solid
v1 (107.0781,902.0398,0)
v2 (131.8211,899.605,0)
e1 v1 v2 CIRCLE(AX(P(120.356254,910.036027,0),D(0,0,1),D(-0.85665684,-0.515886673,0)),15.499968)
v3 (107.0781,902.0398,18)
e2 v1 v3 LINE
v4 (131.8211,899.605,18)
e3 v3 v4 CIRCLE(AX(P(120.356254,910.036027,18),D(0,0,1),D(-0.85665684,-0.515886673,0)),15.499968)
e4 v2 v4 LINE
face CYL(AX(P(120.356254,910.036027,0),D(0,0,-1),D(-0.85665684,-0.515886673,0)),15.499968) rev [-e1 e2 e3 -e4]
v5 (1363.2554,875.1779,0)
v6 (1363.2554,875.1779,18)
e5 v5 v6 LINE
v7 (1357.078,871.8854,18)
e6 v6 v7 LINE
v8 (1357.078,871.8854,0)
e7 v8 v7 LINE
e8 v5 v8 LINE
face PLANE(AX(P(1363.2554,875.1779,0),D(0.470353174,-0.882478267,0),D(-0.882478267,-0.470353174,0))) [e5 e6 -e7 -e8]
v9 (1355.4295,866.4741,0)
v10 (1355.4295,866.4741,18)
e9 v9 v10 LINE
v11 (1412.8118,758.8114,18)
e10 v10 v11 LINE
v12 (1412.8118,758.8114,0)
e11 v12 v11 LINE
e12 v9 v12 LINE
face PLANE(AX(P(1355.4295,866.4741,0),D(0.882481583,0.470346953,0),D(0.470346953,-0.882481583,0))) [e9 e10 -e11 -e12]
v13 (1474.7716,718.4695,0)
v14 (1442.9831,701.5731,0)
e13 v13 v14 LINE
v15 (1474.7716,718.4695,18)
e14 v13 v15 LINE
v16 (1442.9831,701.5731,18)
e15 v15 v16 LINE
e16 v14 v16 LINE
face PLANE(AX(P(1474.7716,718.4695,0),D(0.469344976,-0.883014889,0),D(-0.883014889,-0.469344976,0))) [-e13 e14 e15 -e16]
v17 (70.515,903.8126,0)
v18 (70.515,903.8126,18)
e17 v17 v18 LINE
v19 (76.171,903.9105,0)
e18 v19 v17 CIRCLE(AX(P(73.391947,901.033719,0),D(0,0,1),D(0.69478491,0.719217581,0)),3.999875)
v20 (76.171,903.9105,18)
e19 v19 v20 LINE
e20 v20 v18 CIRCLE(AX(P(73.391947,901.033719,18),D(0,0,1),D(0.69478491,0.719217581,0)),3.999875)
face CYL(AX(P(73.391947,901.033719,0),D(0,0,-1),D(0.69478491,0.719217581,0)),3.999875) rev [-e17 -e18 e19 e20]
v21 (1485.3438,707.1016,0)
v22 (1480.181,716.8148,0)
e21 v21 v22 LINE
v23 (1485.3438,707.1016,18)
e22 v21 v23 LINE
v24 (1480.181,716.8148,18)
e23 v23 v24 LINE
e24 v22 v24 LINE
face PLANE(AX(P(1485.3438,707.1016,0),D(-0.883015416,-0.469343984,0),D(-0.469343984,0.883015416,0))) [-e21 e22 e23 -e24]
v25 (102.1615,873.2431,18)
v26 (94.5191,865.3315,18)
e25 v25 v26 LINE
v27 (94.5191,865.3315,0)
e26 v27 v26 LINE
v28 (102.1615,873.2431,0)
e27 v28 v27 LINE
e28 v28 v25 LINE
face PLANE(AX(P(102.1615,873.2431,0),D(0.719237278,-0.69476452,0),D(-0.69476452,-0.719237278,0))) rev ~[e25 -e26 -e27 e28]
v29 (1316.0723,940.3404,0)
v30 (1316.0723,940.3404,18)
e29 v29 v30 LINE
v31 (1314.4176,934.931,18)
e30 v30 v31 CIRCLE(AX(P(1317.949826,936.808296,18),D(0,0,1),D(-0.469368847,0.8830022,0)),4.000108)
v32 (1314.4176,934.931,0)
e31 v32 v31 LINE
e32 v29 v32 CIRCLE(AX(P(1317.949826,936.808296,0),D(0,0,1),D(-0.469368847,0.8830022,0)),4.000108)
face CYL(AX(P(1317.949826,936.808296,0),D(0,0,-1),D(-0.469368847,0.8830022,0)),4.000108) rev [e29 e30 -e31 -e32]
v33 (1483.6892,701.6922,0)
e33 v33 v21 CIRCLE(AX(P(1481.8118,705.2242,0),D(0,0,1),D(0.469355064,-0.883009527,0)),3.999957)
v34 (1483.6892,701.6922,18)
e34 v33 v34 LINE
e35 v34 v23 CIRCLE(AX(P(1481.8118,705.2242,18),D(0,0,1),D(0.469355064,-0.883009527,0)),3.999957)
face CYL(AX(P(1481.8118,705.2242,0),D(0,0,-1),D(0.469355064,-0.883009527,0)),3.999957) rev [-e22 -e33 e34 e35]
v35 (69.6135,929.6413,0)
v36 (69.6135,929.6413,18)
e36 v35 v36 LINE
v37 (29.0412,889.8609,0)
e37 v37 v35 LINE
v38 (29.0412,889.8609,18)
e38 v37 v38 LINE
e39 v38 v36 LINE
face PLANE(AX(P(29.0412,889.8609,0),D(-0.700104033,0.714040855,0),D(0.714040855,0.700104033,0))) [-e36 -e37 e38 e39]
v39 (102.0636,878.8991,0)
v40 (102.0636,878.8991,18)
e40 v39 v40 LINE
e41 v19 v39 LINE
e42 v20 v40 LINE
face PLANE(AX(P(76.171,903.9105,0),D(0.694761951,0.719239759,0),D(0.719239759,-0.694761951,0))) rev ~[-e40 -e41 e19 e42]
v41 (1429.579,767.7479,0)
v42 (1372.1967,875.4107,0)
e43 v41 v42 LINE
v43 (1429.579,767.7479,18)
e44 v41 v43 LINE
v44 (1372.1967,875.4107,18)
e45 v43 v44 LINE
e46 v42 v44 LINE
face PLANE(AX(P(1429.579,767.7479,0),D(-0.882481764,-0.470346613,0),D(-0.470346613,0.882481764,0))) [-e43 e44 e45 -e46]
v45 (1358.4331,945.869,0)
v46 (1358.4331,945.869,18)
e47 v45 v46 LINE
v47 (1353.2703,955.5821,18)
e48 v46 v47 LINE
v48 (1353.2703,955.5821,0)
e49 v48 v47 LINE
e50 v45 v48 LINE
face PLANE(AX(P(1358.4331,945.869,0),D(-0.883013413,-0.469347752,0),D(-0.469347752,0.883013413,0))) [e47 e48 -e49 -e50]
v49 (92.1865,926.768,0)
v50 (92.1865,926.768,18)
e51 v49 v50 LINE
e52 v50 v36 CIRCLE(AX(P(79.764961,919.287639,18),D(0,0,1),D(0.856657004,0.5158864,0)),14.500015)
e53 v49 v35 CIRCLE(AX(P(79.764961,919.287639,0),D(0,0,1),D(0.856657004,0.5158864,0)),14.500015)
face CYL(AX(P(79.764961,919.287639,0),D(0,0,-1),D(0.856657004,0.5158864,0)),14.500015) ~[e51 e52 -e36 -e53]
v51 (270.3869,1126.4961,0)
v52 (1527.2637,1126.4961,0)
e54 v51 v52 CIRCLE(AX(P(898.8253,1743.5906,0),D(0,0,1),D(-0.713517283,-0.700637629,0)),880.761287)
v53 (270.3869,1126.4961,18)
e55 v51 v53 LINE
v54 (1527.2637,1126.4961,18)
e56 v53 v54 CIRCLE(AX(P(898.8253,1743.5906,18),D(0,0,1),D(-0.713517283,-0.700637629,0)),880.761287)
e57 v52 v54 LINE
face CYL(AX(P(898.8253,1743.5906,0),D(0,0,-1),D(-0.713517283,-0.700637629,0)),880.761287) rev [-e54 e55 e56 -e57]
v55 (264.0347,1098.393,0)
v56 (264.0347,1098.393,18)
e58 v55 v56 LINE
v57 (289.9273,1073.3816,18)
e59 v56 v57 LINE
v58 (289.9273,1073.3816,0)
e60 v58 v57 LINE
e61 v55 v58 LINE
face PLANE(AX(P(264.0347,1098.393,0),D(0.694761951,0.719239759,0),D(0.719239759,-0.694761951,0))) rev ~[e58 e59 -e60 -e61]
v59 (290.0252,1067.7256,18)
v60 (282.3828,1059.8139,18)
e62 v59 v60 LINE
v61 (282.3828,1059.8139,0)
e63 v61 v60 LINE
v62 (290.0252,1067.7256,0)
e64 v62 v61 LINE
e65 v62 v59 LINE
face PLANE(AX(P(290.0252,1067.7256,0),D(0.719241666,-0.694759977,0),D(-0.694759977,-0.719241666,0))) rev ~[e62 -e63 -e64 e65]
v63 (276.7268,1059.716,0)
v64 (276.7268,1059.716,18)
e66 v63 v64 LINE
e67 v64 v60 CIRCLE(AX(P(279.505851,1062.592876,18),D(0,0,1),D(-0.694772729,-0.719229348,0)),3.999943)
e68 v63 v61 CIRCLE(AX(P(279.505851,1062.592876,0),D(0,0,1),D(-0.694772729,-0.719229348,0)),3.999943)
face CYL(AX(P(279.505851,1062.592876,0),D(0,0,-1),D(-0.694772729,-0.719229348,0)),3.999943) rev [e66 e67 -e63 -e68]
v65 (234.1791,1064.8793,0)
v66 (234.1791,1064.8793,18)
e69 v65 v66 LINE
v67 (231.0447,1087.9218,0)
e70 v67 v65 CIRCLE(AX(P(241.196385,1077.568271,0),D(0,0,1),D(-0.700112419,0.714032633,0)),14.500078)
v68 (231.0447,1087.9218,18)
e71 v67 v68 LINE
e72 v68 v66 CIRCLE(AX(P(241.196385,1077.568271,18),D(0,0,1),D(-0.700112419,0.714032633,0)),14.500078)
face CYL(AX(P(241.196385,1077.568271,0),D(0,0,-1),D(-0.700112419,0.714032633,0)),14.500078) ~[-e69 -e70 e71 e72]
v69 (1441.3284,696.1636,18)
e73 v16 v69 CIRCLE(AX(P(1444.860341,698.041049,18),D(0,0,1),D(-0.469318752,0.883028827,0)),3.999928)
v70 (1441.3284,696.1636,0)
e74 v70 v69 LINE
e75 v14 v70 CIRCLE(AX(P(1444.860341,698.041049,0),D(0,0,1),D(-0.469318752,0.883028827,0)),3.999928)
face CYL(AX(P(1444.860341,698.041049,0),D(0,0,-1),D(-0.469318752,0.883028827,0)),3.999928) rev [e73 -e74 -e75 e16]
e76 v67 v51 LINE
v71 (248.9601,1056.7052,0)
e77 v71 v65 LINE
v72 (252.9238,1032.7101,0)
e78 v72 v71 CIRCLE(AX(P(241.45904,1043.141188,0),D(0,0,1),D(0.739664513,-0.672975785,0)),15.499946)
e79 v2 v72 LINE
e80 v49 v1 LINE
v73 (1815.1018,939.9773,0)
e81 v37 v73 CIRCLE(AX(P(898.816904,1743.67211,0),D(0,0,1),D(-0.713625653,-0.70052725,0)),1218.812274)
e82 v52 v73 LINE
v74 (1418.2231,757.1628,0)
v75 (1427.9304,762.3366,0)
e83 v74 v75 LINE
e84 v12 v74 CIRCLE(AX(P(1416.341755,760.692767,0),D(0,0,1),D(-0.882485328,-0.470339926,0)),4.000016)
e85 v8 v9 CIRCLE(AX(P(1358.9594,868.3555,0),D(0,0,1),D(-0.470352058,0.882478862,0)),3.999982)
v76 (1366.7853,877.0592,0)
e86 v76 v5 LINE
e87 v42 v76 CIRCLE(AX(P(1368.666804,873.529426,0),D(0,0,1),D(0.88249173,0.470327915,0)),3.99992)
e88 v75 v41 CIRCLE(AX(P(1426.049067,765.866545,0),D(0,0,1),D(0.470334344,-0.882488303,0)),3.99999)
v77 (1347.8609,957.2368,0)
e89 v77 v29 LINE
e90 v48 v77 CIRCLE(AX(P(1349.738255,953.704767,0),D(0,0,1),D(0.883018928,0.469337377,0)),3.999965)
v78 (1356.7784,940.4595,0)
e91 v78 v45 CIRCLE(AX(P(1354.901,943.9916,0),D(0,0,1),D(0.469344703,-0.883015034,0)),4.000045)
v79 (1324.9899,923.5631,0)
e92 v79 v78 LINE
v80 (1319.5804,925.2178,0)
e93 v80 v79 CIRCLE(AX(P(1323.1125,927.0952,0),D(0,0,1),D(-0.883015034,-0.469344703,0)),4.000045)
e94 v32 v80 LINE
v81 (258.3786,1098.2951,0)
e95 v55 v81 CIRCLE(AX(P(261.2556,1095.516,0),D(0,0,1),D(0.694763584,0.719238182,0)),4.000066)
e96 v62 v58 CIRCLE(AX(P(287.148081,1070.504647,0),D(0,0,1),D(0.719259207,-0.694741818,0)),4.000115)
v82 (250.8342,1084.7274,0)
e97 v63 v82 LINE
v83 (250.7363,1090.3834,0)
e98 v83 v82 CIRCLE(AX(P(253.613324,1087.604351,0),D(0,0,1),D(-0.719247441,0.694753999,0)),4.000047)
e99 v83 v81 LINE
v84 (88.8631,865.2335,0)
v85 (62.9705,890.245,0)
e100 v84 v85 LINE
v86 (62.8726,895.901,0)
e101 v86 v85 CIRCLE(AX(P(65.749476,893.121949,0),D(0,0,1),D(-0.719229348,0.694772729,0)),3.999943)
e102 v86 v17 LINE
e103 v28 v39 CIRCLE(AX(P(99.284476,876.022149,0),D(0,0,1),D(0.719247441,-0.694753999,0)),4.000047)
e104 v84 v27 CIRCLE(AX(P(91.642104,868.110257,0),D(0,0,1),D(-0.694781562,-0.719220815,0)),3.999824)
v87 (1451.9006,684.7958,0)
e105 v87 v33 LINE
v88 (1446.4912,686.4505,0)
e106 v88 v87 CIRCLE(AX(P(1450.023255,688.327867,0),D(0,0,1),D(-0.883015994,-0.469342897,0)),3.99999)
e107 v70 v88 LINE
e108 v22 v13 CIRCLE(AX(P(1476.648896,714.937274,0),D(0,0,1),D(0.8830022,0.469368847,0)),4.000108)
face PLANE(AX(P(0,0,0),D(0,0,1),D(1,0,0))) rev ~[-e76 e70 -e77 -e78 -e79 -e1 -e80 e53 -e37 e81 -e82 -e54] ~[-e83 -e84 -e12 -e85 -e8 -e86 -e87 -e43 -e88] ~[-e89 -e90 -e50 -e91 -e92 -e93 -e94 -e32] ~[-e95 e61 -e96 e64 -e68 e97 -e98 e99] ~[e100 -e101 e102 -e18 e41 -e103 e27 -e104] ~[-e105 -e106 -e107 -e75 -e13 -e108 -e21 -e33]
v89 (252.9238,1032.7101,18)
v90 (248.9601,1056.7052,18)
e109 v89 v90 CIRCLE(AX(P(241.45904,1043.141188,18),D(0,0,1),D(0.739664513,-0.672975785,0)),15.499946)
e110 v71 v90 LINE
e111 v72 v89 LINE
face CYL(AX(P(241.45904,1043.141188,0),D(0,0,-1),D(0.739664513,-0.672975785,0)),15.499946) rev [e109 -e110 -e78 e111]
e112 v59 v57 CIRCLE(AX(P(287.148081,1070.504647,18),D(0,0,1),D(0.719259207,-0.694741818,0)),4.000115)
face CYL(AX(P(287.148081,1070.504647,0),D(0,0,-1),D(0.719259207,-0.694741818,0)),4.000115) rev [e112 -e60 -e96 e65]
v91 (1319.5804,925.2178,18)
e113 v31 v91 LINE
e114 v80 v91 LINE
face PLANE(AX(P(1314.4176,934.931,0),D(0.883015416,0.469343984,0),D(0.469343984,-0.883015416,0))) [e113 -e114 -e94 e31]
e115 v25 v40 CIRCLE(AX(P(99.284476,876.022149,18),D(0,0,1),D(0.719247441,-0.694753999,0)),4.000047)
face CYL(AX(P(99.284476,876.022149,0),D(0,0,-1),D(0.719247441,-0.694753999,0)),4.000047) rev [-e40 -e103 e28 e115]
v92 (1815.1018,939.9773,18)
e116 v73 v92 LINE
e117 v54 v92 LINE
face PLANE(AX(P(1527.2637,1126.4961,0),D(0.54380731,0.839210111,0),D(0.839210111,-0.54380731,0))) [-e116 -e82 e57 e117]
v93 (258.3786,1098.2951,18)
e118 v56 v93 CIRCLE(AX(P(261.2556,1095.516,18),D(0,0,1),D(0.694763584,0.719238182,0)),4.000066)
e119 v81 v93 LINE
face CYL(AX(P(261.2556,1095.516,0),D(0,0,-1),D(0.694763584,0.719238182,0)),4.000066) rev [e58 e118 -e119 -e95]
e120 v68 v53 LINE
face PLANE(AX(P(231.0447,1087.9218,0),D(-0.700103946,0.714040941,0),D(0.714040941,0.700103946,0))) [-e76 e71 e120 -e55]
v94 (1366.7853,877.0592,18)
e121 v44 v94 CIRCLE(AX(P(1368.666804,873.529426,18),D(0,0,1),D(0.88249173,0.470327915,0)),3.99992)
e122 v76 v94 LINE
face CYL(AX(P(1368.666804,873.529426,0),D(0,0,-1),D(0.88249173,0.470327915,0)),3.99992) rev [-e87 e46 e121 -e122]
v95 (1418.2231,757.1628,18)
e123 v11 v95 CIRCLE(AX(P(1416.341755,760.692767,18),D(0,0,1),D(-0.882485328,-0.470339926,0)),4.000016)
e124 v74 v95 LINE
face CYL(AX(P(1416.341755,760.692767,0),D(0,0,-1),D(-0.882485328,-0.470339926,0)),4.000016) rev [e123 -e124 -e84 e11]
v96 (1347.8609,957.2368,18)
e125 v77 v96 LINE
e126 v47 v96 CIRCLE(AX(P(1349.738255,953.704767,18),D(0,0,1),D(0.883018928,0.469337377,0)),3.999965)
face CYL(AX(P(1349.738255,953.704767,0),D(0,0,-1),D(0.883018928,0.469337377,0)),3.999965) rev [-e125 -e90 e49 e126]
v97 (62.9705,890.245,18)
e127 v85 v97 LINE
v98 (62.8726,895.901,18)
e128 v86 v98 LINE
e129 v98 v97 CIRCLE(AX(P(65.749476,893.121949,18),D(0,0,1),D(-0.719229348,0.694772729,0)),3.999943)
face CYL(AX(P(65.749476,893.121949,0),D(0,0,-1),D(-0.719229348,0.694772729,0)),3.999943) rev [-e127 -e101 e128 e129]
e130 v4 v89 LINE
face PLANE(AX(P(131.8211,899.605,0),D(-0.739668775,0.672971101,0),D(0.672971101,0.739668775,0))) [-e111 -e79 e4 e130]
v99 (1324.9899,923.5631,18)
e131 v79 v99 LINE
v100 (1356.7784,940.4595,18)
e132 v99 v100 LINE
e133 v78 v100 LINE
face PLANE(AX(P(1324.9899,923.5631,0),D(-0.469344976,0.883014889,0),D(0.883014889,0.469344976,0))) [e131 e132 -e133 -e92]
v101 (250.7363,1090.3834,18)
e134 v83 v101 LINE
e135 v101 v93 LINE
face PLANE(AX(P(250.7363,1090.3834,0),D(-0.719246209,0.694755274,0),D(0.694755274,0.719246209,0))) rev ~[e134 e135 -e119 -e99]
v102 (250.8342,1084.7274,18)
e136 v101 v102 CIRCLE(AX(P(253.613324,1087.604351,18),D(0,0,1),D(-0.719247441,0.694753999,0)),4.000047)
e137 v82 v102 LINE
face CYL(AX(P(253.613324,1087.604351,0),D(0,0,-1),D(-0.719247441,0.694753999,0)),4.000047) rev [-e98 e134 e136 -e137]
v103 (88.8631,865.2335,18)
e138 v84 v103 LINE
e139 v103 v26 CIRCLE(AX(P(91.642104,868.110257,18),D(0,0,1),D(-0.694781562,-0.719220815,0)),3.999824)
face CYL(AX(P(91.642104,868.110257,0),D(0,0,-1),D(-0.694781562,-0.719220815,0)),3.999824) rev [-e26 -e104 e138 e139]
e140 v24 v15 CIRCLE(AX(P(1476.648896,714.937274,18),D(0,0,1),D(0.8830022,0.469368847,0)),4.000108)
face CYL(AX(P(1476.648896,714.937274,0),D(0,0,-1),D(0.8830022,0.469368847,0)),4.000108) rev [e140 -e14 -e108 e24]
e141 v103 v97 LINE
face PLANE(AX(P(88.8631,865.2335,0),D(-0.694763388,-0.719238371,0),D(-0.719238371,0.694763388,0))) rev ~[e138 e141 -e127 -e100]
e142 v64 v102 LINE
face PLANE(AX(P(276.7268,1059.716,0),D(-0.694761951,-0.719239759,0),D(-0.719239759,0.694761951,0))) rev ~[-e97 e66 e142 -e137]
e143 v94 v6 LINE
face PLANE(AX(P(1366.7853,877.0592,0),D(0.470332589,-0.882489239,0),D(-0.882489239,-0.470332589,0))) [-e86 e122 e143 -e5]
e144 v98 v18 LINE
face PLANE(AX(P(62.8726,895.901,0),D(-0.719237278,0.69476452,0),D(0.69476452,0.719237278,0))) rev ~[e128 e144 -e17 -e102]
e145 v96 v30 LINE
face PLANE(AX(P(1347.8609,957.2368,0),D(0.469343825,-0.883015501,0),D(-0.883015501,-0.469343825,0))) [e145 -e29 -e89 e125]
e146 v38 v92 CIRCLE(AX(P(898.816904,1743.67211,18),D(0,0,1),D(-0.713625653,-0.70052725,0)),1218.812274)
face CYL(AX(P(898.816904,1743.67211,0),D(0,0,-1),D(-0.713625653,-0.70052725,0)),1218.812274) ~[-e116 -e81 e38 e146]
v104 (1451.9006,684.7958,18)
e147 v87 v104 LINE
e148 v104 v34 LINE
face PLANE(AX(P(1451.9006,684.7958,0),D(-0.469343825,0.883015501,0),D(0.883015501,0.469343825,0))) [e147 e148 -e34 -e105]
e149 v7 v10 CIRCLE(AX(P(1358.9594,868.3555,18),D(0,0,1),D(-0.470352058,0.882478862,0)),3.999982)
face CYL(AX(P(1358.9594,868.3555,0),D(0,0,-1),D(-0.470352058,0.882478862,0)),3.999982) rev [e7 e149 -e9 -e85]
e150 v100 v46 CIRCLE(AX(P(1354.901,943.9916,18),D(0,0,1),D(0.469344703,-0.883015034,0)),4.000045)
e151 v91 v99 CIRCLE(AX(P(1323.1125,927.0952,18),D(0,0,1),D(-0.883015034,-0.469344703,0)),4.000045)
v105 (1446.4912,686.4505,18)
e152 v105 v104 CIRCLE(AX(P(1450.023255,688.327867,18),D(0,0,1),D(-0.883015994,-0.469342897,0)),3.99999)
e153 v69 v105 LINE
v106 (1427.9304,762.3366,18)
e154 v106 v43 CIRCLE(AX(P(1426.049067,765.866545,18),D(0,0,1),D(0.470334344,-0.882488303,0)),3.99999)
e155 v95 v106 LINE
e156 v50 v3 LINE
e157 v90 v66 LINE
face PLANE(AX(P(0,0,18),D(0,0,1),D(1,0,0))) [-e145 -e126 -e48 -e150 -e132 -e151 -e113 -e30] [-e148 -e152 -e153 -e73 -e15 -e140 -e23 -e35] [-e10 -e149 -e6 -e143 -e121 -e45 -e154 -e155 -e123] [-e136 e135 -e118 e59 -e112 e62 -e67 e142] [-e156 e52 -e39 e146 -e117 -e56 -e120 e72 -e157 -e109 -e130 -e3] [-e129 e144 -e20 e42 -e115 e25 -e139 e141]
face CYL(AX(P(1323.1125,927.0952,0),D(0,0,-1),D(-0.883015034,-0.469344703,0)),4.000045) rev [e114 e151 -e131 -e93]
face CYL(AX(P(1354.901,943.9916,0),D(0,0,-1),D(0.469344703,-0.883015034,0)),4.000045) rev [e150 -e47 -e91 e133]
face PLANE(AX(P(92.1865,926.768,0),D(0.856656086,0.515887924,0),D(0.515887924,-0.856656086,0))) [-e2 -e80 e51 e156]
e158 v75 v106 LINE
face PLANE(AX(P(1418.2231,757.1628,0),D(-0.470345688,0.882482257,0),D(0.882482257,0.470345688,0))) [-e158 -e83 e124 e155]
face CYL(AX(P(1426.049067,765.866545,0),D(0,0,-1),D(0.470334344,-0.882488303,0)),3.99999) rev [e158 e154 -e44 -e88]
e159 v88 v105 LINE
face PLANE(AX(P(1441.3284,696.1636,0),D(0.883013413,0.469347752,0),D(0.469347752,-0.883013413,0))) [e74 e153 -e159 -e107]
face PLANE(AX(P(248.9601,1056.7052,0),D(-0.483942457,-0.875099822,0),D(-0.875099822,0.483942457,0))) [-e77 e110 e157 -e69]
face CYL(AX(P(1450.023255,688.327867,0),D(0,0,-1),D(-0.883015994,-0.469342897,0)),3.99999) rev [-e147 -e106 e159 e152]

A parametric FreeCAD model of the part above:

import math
import FreeCAD as App
import Part
import Sketcher
from FreeCAD import Vector
Q = App.Units.Quantity

doc = App.newDocument("Part")
body = doc.addObject("PartDesign::Body", "Body")

# Sketch on XY plane
sketch1 = body.newObject("Sketcher::SketchObject", "Sketch")
sketch1.AttachmentSupport = (doc.getObject("XY_Plane"), [""])
sketch1.MapMode = "FlatFace"
sketch1.addGeometry([
    Part.LineSegment(Vector(70, 930, 0), Vector(29, 890, 0)),  # 0
    Part.ArcOfCircle(Part.Circle(Vector(899, 1744, 0), Vector(0, 0, 1), 1219), math.radians(-136), math.radians(-41)),  # 1
    Part.LineSegment(Vector(1815, 940, 0), Vector(1527, 1126, 0)),  # 2
    Part.ArcOfCircle(Part.Circle(Vector(899, 1744, 0), Vector(0, 0, 1), 881), math.radians(-136), math.radians(-44)),  # 3
    Part.LineSegment(Vector(270, 1126, 0), Vector(231, 1088, 0)),  # 4
    Part.ArcOfCircle(Part.Circle(Vector(241, 1078, 0), Vector(0, 0, 1), 14), math.radians(134), math.radians(241)),  # 5
    Part.LineSegment(Vector(234, 1065, 0), Vector(249, 1057, 0)),  # 6
    Part.ArcOfCircle(Part.Circle(Vector(241, 1043, 0), Vector(0, 0, 1), 15), math.radians(-42), math.radians(61)),  # 7
    Part.LineSegment(Vector(253, 1033, 0), Vector(132, 900, 0)),  # 8
    Part.ArcOfCircle(Part.Circle(Vector(120, 910, 0), Vector(0, 0, 1), 16), math.radians(-149), math.radians(-42)),  # 9
    Part.LineSegment(Vector(107, 902, 0), Vector(92, 927, 0)),  # 10
    Part.ArcOfCircle(Part.Circle(Vector(80, 919, 0), Vector(0, 0, 1), 14), math.radians(31), math.radians(134)),  # 11
], False)
sketch1.addConstraint([
    Sketcher.Constraint("Coincident", 0, 2, 1, 1),
    Sketcher.Constraint("Coincident", 1, 2, 2, 1),
    Sketcher.Constraint("Coincident", 2, 2, 3, 2),
    Sketcher.Constraint("Coincident", 3, 1, 4, 1),
    Sketcher.Constraint("Tangent", 4, 2, 5, 1),
    Sketcher.Constraint("Tangent", 5, 2, 6, 1),
    Sketcher.Constraint("Tangent", 6, 2, 7, 2),
    Sketcher.Constraint("Tangent", 7, 1, 8, 1),
    Sketcher.Constraint("Tangent", 8, 2, 9, 2),
    Sketcher.Constraint("Tangent", 9, 1, 10, 1),
    Sketcher.Constraint("Tangent", 10, 2, 11, 1),
    Sketcher.Constraint("Tangent", 11, 2, 0, 1),
    Sketcher.Constraint("Equal", 7, 9),
    Sketcher.Constraint("Equal", 5, 11),
    Sketcher.Constraint("Parallel", 0, 4),
    Sketcher.Constraint("Radius", 5, Q("14.5 mm")),
    Sketcher.Constraint("Radius", 7, Q("15.5 mm")),
    Sketcher.Constraint("Radius", 1, Q("1218.8123 mm")),
    Sketcher.Constraint("Radius", 3, Q("880.7613 mm")),
    Sketcher.Constraint("DistanceX", -1, 1, 6, 2, Q("248.96 mm")),
    Sketcher.Constraint("DistanceY", -1, 1, 7, 1, Q("1032.71 mm")),
    Sketcher.Constraint("DistanceX", 9, 3, 5, 3, Q("120.84 mm")),
    Sketcher.Constraint("DistanceX", 0, 2, 8, 2, Q("102.78 mm")),
    Sketcher.Constraint("Distance", 2, Q("342.987 mm")),
    Sketcher.Constraint("Distance", 4, Q("55.098 mm")),
    Sketcher.Constraint("Distance", 10, Q("28.866 mm")),
    Sketcher.Constraint("DistanceX", -1, 1, 1, 3, Q("898.817 mm")),
    Sketcher.Constraint("DistanceY", -1, 1, 1, 3, Q("1743.672 mm")),
    Sketcher.Constraint("DistanceX", -1, 1, 7, 3, Q("241.459 mm")),
    Sketcher.Constraint("DistanceY", -1, 1, 9, 3, Q("910.036 mm")),
    Sketcher.Constraint("DistanceX", -1, 1, 11, 3, Q("79.765 mm")),
    Sketcher.Constraint("DistanceY", -1, 1, 0, 2, Q("889.861 mm")),
    Sketcher.Constraint("DistanceY", -1, 1, 2, 2, Q("1126.496 mm")),
    Sketcher.Constraint("DistanceX", 5, 3, 3, 3, Q("657.629 mm")),
])
pad1 = body.newObject("PartDesign::Pad", "Pad")
pad1.Profile = sketch1
pad1.Length = 18

# Sketch on XY plane
sketch2 = body.newObject("Sketcher::SketchObject", "Sketch001")
sketch2.AttachmentSupport = (doc.getObject("XY_Plane"), [""])
sketch2.MapMode = "FlatFace"
sketch2.addGeometry([
    Part.LineSegment(Vector(282.4, 1059.8, 0), Vector(290, 1067.7, 0)),  # 0
    Part.ArcOfCircle(Part.Circle(Vector(287.1, 1070.5, 0), Vector(0, 0, 1), 4), math.radians(-44), math.radians(46)),  # 1
    Part.LineSegment(Vector(289.9, 1073.4, 0), Vector(264, 1098.4, 0)),  # 2
    Part.ArcOfCircle(Part.Circle(Vector(261.3, 1095.5, 0), Vector(0, 0, 1), 4), math.radians(46), math.radians(136)),  # 3
    Part.LineSegment(Vector(258.4, 1098.3, 0), Vector(250.7, 1090.4, 0)),  # 4
    Part.ArcOfCircle(Part.Circle(Vector(253.6, 1087.6, 0), Vector(0, 0, 1), 4), math.radians(136), math.radians(226)),  # 5
    Part.LineSegment(Vector(250.8, 1084.7, 0), Vector(276.7, 1059.7, 0)),  # 6
    Part.ArcOfCircle(Part.Circle(Vector(279.5, 1062.6, 0), Vector(0, 0, 1), 4), math.radians(-134), math.radians(-44)),  # 7
    Part.LineSegment(Vector(94.5, 865.3, 0), Vector(102.2, 873.2, 0)),  # 8
    Part.ArcOfCircle(Part.Circle(Vector(99.3, 876, 0), Vector(0, 0, 1), 4), math.radians(-44), math.radians(46)),  # 9
    Part.LineSegment(Vector(102.1, 878.9, 0), Vector(76.2, 903.9, 0)),  # 10
    Part.ArcOfCircle(Part.Circle(Vector(73.4, 901, 0), Vector(0, 0, 1), 4), math.radians(46), math.radians(136)),  # 11
    Part.LineSegment(Vector(70.5, 903.8, 0), Vector(62.9, 895.9, 0)),  # 12
    Part.ArcOfCircle(Part.Circle(Vector(65.7, 893.1, 0), Vector(0, 0, 1), 4), math.radians(136), math.radians(226)),  # 13
    Part.LineSegment(Vector(63, 890.2, 0), Vector(88.9, 865.2, 0)),  # 14
    Part.ArcOfCircle(Part.Circle(Vector(91.6, 868.1, 0), Vector(0, 0, 1), 4), math.radians(-134), math.radians(-44)),  # 15
    Part.ArcOfCircle(Part.Circle(Vector(1354.9, 944, 0), Vector(0, 0, 1), 4), math.radians(-62), math.radians(28)),  # 16
    Part.LineSegment(Vector(1358.4, 945.9, 0), Vector(1353.3, 955.6, 0)),  # 17
    Part.ArcOfCircle(Part.Circle(Vector(1349.7, 953.7, 0), Vector(0, 0, 1), 4), math.radians(28), math.radians(118)),  # 18
    Part.LineSegment(Vector(1347.9, 957.2, 0), Vector(1316.1, 940.3, 0)),  # 19
    Part.ArcOfCircle(Part.Circle(Vector(1317.9, 936.8, 0), Vector(0, 0, 1), 4), math.radians(118), math.radians(208)),  # 20
    Part.LineSegment(Vector(1314.4, 934.9, 0), Vector(1319.6, 925.2, 0)),  # 21
    Part.ArcOfCircle(Part.Circle(Vector(1323.1, 927.1, 0), Vector(0, 0, 1), 4), math.radians(-152), math.radians(-62)),  # 22
    Part.LineSegment(Vector(1325, 923.6, 0), Vector(1356.8, 940.5, 0)),  # 23
    Part.ArcOfCircle(Part.Circle(Vector(1444.9, 698, 0), Vector(0, 0, 1), 4), math.radians(118), math.radians(208)),  # 24
    Part.LineSegment(Vector(1441.3, 696.2, 0), Vector(1446.5, 686.5, 0)),  # 25
    Part.ArcOfCircle(Part.Circle(Vector(1450, 688.3, 0), Vector(0, 0, 1), 4), math.radians(-152), math.radians(-62)),  # 26
    Part.LineSegment(Vector(1451.9, 684.8, 0), Vector(1483.7, 701.7, 0)),  # 27
    Part.ArcOfCircle(Part.Circle(Vector(1481.8, 705.2, 0), Vector(0, 0, 1), 4), math.radians(-62), math.radians(28)),  # 28
    Part.LineSegment(Vector(1485.3, 707.1, 0), Vector(1480.2, 716.8, 0)),  # 29
    Part.ArcOfCircle(Part.Circle(Vector(1476.6, 714.9, 0), Vector(0, 0, 1), 4), math.radians(28), math.radians(118)),  # 30
    Part.LineSegment(Vector(1474.8, 718.5, 0), Vector(1443, 701.6, 0)),  # 31
    Part.LineSegment(Vector(1366.8, 877.1, 0), Vector(1363.3, 875.2, 0)),  # 32
    Part.LineSegment(Vector(1363.3, 875.2, 0), Vector(1357.1, 871.9, 0)),  # 33
    Part.ArcOfCircle(Part.Circle(Vector(1359, 868.4, 0), Vector(0, 0, 1), 4), math.radians(118), math.radians(208)),  # 34
    Part.LineSegment(Vector(1355.4, 866.5, 0), Vector(1412.8, 758.8, 0)),  # 35
    Part.ArcOfCircle(Part.Circle(Vector(1416.3, 760.7, 0), Vector(0, 0, 1), 4), math.radians(-152), math.radians(-62)),  # 36
    Part.LineSegment(Vector(1418.2, 757.2, 0), Vector(1427.9, 762.3, 0)),  # 37
    Part.ArcOfCircle(Part.Circle(Vector(1426, 765.9, 0), Vector(0, 0, 1), 4), math.radians(-62), math.radians(28)),  # 38
    Part.LineSegment(Vector(1429.6, 767.7, 0), Vector(1372.2, 875.4, 0)),  # 39
    Part.ArcOfCircle(Part.Circle(Vector(1368.7, 873.5, 0), Vector(0, 0, 1), 4), math.radians(28), math.radians(118)),  # 40
], False)
sketch2.addConstraint([
    Sketcher.Constraint("Tangent", 0, 2, 1, 1),
    Sketcher.Constraint("Tangent", 1, 2, 2, 1),
    Sketcher.Constraint("Tangent", 2, 2, 3, 1),
    Sketcher.Constraint("Tangent", 3, 2, 4, 1),
    Sketcher.Constraint("Tangent", 4, 2, 5, 1),
    Sketcher.Constraint("Tangent", 5, 2, 6, 1),
    Sketcher.Constraint("Tangent", 6, 2, 7, 1),
    Sketcher.Constraint("Tangent", 7, 2, 0, 1),
    Sketcher.Constraint("Tangent", 8, 2, 9, 1),
    Sketcher.Constraint("Tangent", 9, 2, 10, 1),
    Sketcher.Constraint("Tangent", 10, 2, 11, 1),
    Sketcher.Constraint("Tangent", 11, 2, 12, 1),
    Sketcher.Constraint("Tangent", 12, 2, 13, 1),
    Sketcher.Constraint("Tangent", 13, 2, 14, 1),
    Sketcher.Constraint("Tangent", 14, 2, 15, 1),
    Sketcher.Constraint("Tangent", 15, 2, 8, 1),
    Sketcher.Constraint("Tangent", 16, 2, 17, 1),
    Sketcher.Constraint("Tangent", 17, 2, 18, 1),
    Sketcher.Constraint("Tangent", 18, 2, 19, 1),
    Sketcher.Constraint("Tangent", 19, 2, 20, 1),
    Sketcher.Constraint("Tangent", 20, 2, 21, 1),
    Sketcher.Constraint("Tangent", 21, 2, 22, 1),
    Sketcher.Constraint("Tangent", 22, 2, 23, 1),
    Sketcher.Constraint("Tangent", 23, 2, 16, 1),
    Sketcher.Constraint("Tangent", 24, 2, 25, 1),
    Sketcher.Constraint("Tangent", 25, 2, 26, 1),
    Sketcher.Constraint("Tangent", 26, 2, 27, 1),
    Sketcher.Constraint("Tangent", 27, 2, 28, 1),
    Sketcher.Constraint("Tangent", 28, 2, 29, 1),
    Sketcher.Constraint("Tangent", 29, 2, 30, 1),
    Sketcher.Constraint("Tangent", 30, 2, 31, 1),
    Sketcher.Constraint("Tangent", 31, 2, 24, 1),
    Sketcher.Constraint("Coincident", 32, 2, 33, 1),
    Sketcher.Constraint("Tangent", 33, 2, 34, 1),
    Sketcher.Constraint("Tangent", 34, 2, 35, 1),
    Sketcher.Constraint("Tangent", 35, 2, 36, 1),
    Sketcher.Constraint("Tangent", 36, 2, 37, 1),
    Sketcher.Constraint("Tangent", 37, 2, 38, 1),
    Sketcher.Constraint("Tangent", 38, 2, 39, 1),
    Sketcher.Constraint("Tangent", 39, 2, 40, 1),
    Sketcher.Constraint("Tangent", 40, 2, 32, 1),
    Sketcher.Constraint("Equal", 1, 3),
    Sketcher.Constraint("Equal", 3, 5),
    Sketcher.Constraint("Equal", 5, 7),
    Sketcher.Constraint("Equal", 7, 9),
    Sketcher.Constraint("Equal", 9, 11),
    Sketcher.Constraint("Equal", 11, 13),
    Sketcher.Constraint("Equal", 13, 15),
    Sketcher.Constraint("Equal", 15, 16),
    Sketcher.Constraint("Equal", 16, 18),
    Sketcher.Constraint("Equal", 18, 20),
    Sketcher.Constraint("Equal", 20, 22),
    Sketcher.Constraint("Equal", 22, 24),
    Sketcher.Constraint("Equal", 24, 26),
    Sketcher.Constraint("Equal", 26, 28),
    Sketcher.Constraint("Equal", 28, 30),
    Sketcher.Constraint("Equal", 30, 34),
    Sketcher.Constraint("Equal", 34, 36),
    Sketcher.Constraint("Equal", 36, 38),
    Sketcher.Constraint("Equal", 38, 40),
    Sketcher.Constraint("Perpendicular", 0, 2),
    Sketcher.Constraint("Perpendicular", 2, 4),
    Sketcher.Constraint("Perpendicular", 4, 6),
    Sketcher.Constraint("Perpendicular", 6, 8),
    Sketcher.Constraint("Perpendicular", 8, 10),
    Sketcher.Constraint("Perpendicular", 10, 12),
    Sketcher.Constraint("Perpendicular", 12, 14),
    Sketcher.Constraint("Perpendicular", 17, 19),
    Sketcher.Constraint("Perpendicular", 19, 21),
    Sketcher.Constraint("Perpendicular", 21, 23),
    Sketcher.Constraint("Perpendicular", 23, 25),
    Sketcher.Constraint("Perpendicular", 25, 27),
    Sketcher.Constraint("Perpendicular", 27, 29),
    Sketcher.Constraint("Perpendicular", 29, 31),
    Sketcher.Constraint("Parallel", 32, 33),
    Sketcher.Constraint("Perpendicular", 33, 35),
    Sketcher.Constraint("Perpendicular", 35, 37),
    Sketcher.Constraint("Perpendicular", 37, 39),
    Sketcher.Constraint("Equal", 4, 8),
    Sketcher.Constraint("Equal", 6, 10),
    Sketcher.Constraint("Equal", 12, 17),
    Sketcher.Constraint("Equal", 14, 19),
    Sketcher.Constraint("Equal", 21, 25),
    Sketcher.Constraint("Equal", 23, 27),
    Sketcher.Constraint("Equal", 29, 37),
    Sketcher.Constraint("Radius", 1, Q("4 mm")),
    Sketcher.Constraint("Distance", 0, Q("11 mm")),
    Sketcher.Constraint("Distance", 2, Q("36 mm")),
    Sketcher.Constraint("Distance", 32, Q("4 mm")),
    Sketcher.Constraint("Distance", 35, Q("122 mm")),
    Sketcher.Constraint("DistanceX", -1, 1, 22, 2, Q("1324.99 mm")),
    Sketcher.Constraint("DistanceY", -1, 1, 3, 3, Q("1095.516 mm")),
    Sketcher.Constraint("DistanceX", -1, 1, 7, 3, Q("279.506 mm")),
    Sketcher.Constraint("DistanceY", -1, 1, 7, 3, Q("1062.593 mm")),
    Sketcher.Constraint("DistanceY", -1, 1, 9, 3, Q("876.022 mm")),
    Sketcher.Constraint("DistanceX", -1, 1, 11, 3, Q("73.392 mm")),
    Sketcher.Constraint("DistanceX", -1, 1, 16, 3, Q("1354.901 mm")),
    Sketcher.Constraint("DistanceY", -1, 1, 24, 3, Q("698.041 mm")),
    Sketcher.Constraint("DistanceX", -1, 1, 30, 3, Q("1476.649 mm")),
    Sketcher.Constraint("DistanceX", -1, 1, 38, 3, Q("1426.049 mm")),
    Sketcher.Constraint("DistanceY", -1, 1, 16, 2, Q("945.869 mm")),
    Sketcher.Constraint("DistanceY", -1, 1, 32, 2, Q("875.178 mm")),
    Sketcher.Constraint("DistanceX", -1, 1, 33, 2, Q("1357.078 mm")),
])
pocket1 = body.newObject("PartDesign::Pocket", "Pocket")
pocket1.Profile = sketch2
pocket1.Length = 18
pocket1.Reversed = True

doc.recompute()
